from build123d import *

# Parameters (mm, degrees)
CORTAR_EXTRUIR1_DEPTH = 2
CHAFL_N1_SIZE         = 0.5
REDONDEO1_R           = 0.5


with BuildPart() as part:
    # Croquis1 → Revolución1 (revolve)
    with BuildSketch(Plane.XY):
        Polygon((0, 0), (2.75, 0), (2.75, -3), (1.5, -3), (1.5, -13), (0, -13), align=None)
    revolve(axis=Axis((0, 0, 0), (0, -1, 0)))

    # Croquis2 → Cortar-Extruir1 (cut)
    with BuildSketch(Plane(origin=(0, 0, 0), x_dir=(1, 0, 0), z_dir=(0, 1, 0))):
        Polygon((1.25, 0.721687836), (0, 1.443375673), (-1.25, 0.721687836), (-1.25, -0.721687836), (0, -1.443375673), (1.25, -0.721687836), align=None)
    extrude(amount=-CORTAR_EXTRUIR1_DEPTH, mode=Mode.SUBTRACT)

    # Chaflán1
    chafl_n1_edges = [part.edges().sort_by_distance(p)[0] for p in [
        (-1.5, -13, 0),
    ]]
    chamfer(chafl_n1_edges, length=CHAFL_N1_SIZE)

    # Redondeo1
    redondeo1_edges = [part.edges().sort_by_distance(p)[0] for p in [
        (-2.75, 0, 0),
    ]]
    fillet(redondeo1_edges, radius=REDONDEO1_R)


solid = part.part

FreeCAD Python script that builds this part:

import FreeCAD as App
import Part
import Sketcher
Q = App.Units.Quantity


def edges_at(feature, points):
    """Names of the edges that pass closest to the given points."""
    edges = feature.Shape.Edges
    near = lambda p: min(range(len(edges)), key=lambda i: edges[i].distToShape(Part.Vertex(*p))[0])
    return sorted({f"Edge{near(p) + 1}" for p in points})


def add_polygon(sketch, points):
    """Adds a closed chain of lines whose ends are joined by coincident constraints."""
    first, n = sketch.GeometryCount, len(points)
    for a, b in zip(points, points[1:] + points[:1]):
        sketch.addGeometry(Part.LineSegment(App.Vector(*a, 0), App.Vector(*b, 0)), False)
    for i in range(n):
        sketch.addConstraint(Sketcher.Constraint("Coincident", first + i, 2, first + (i + 1) % n, 1))

doc = App.newDocument("Part")
body = doc.addObject("PartDesign::Body", "Body")

# Sketch on XY plane
sketch1 = doc.addObject("Sketcher::SketchObject", "Sketch")
body.addObject(sketch1)
sketch1.AttachmentSupport = (doc.XY_Plane, [""])
sketch1.MapMode = "FlatFace"
add_polygon(sketch1, [(2.8, 0), (0, 0), (0, -13), (1.5, -13), (1.5, -3), (2.8, -3)])  # lines 0-5
sketch1.addConstraint(Sketcher.Constraint("Horizontal", 0))
sketch1.addConstraint(Sketcher.Constraint("Vertical", 1))
sketch1.addConstraint(Sketcher.Constraint("Horizontal", 2))
sketch1.addConstraint(Sketcher.Constraint("Vertical", 3))
sketch1.addConstraint(Sketcher.Constraint("Horizontal", 4))
sketch1.addConstraint(Sketcher.Constraint("Vertical", 5))
sketch1.addConstraint(Sketcher.Constraint("Coincident", 0, 2, -1, 1))
sketch1.addConstraint(Sketcher.Constraint("DistanceY", 1, 2, 1, 1, 13.0))
sketch1.addConstraint(Sketcher.Constraint("DistanceY", 3, 1, 3, 2, 10.0))
sketch1.addConstraint(Sketcher.Constraint("DistanceX", 2, 1, 2, 2, 1.5))
sketch1.addConstraint(Sketcher.Constraint("DistanceX", 0, 2, 0, 1, 2.75))
revolution = doc.addObject("PartDesign::Revolution", "Revolution")
body.addObject(revolution)
revolution.Profile = sketch1
revolution.ReferenceAxis = (sketch1, ["V_Axis"])
revolution.Angle = 360

# Sketch on XZ plane
sketch2 = doc.addObject("Sketcher::SketchObject", "Sketch001")
body.addObject(sketch2)
sketch2.AttachmentSupport = (doc.XZ_Plane, [""])
sketch2.MapMode = "FlatFace"
add_polygon(sketch2, [(1.2, -0.7), (0, -1.4), (-1.2, -0.7), (-1.2, 0.7), (0, 1.4), (1.2, 0.7)])  # lines 0-5
sketch2.addConstraint(Sketcher.Constraint("Vertical", 2))
sketch2.addConstraint(Sketcher.Constraint("Vertical", 5))
sketch2.addConstraint(Sketcher.Constraint("Symmetric", 0, 2, 3, 2, -1, 1))
sketch2.addConstraint(Sketcher.Constraint("Symmetric", 1, 2, 4, 2, -1, 1))
sketch2.addConstraint(Sketcher.Constraint("PointOnObject", 0, 2, -2))
sketch2.addConstraint(Sketcher.Constraint("Parallel", 0, 3))
sketch2.addConstraint(Sketcher.Constraint("Horizontal", 2, 2, 4, 2))
sketch2.addConstraint(Sketcher.Constraint("Angle", 0, Q("-150 deg")))
sketch2.addConstraint(Sketcher.Constraint("DistanceX", 2, 2, 4, 2, 2.5))
sketch2.addConstraint(Sketcher.Constraint("DistanceY", 2, 1, 2, 2, 1.443376))
pocket1 = doc.addObject("PartDesign::Pocket", "Pocket")
body.addObject(pocket1)
pocket1.Profile = sketch2
pocket1.Length = 2
pocket1.Reversed = True
doc.recompute()

chamfer = doc.addObject("PartDesign::Chamfer", "Chamfer")
body.addObject(chamfer)
chamfer.Base = (pocket1, edges_at(pocket1, [(-1.5, -13, 0)]))
chamfer.Size = 0.5
doc.recompute()

fillet = doc.addObject("PartDesign::Fillet", "Fillet")
body.addObject(fillet)
fillet.Base = (chamfer, edges_at(chamfer, [(-2.75, 0, 0)]))
fillet.Radius = 0.5

doc.recompute()
